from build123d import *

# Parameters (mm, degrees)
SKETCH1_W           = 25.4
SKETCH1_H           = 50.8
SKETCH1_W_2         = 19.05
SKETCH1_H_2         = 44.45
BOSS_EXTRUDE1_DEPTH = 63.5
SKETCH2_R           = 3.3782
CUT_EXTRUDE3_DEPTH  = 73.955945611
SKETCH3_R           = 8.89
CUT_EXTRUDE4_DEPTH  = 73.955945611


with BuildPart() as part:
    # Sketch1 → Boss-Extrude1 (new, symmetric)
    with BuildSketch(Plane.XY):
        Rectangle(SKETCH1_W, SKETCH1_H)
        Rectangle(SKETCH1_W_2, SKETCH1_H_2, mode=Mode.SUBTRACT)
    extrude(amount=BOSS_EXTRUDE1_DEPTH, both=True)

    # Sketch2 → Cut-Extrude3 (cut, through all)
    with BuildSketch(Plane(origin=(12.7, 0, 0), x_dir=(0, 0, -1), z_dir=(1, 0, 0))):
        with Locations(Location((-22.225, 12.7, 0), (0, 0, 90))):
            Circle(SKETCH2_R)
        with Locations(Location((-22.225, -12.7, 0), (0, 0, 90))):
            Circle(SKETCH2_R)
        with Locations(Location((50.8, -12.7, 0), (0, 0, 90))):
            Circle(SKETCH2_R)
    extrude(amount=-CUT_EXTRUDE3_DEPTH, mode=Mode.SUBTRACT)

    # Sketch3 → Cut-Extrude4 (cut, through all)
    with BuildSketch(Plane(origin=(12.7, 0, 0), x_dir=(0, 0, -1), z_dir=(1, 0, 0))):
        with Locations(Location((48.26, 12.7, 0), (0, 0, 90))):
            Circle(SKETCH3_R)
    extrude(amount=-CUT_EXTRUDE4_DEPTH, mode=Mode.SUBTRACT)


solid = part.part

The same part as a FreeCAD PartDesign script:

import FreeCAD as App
import Part
import Sketcher
Q = App.Units.Quantity


def add_polygon(sketch, points):
    """Adds a closed chain of lines whose ends are joined by coincident constraints."""
    first, n = sketch.GeometryCount, len(points)
    for a, b in zip(points, points[1:] + points[:1]):
        sketch.addGeometry(Part.LineSegment(App.Vector(*a, 0), App.Vector(*b, 0)), False)
    for i in range(n):
        sketch.addConstraint(Sketcher.Constraint("Coincident", first + i, 2, first + (i + 1) % n, 1))

doc = App.newDocument("Part")
params = doc.addObject("Spreadsheet::Sheet", "Params")
for row, (alias, value) in enumerate([
    ("sketch1_width", "1 in"),
    ("sketch1_height", "2 in"),
    ("sketch1_width2", "0.75 in"),
    ("sketch1_height2", "1.75 in"),
    ("pad1_length", "5 in"),
    ("sketch2_diameter", "0.266 in"),
    ("sketch3_diameter", "0.7 in"),
], start=1):
    params.set(f"A{row}", alias)
    params.set(f"B{row}", "=" + value)
    params.setAlias(f"B{row}", alias)

body = doc.addObject("PartDesign::Body", "Body")

# Sketch on XY plane
sketch1 = body.newObject("Sketcher::SketchObject", "Sketch")
sketch1.AttachmentSupport = (doc.getObject("XY_Plane"), [""])
sketch1.MapMode = "FlatFace"
add_polygon(sketch1, [(-13, 25), (-13, -25), (13, -25), (13, 25)])  # lines 0-3
add_polygon(sketch1, [(10, -22), (-10, -22), (-10, 22), (10, 22)])  # lines 4-7
sketch1.addConstraint(Sketcher.Constraint("Vertical", 0))
sketch1.addConstraint(Sketcher.Constraint("Horizontal", 1))
sketch1.addConstraint(Sketcher.Constraint("Vertical", 2))
sketch1.addConstraint(Sketcher.Constraint("Horizontal", 3))
sketch1.addConstraint(Sketcher.Constraint("Horizontal", 4))
sketch1.addConstraint(Sketcher.Constraint("Vertical", 5))
sketch1.addConstraint(Sketcher.Constraint("Horizontal", 6))
sketch1.addConstraint(Sketcher.Constraint("Vertical", 7))
sketch1.addConstraint(Sketcher.Constraint("Symmetric", 0, 2, 2, 2, -1, 1))
sketch1.addConstraint(Sketcher.Constraint("Symmetric", 4, 2, 6, 2, -1, 1))
sketch1.addConstraint(Sketcher.Constraint("DistanceX", 1, 1, 1, 2, Q("1 in")))
sketch1.addConstraint(Sketcher.Constraint("DistanceY", 0, 2, 0, 1, Q("2 in")))
sketch1.addConstraint(Sketcher.Constraint("DistanceX", 4, 2, 4, 1, Q("0.75 in")))
sketch1.addConstraint(Sketcher.Constraint("DistanceY", 5, 1, 5, 2, Q("1.75 in")))
sketch1.setExpression("Constraints[18]", "Params.sketch1_width")
sketch1.setExpression("Constraints[19]", "Params.sketch1_height")
sketch1.setExpression("Constraints[20]", "Params.sketch1_width2")
sketch1.setExpression("Constraints[21]", "Params.sketch1_height2")
pad1 = body.newObject("PartDesign::Pad", "Pad")
pad1.Profile = sketch1
pad1.setExpression("Length", "Params.pad1_length")
pad1.Midplane = True

# Sketch on YZ plane
sketch2 = body.newObject("Sketcher::SketchObject", "Sketch001")
sketch2.AttachmentSupport = (doc.getObject("YZ_Plane"), [""])
sketch2.MapMode = "FlatFace"
sketch2.AttachmentOffset = App.Placement(App.Vector(0, 0, 0.5 * 25.4), App.Rotation())
sketch2.addGeometry(Part.Circle(App.Vector(12.7, 22.2, 0), App.Vector(0, 0, 1), 3.4), False)
sketch2.addGeometry(Part.Circle(App.Vector(-12.7, 22.2, 0), App.Vector(0, 0, 1), 3.4), False)
sketch2.addGeometry(Part.Circle(App.Vector(-12.7, -50.8, 0), App.Vector(0, 0, 1), 3.4), False)
sketch2.addConstraint(Sketcher.Constraint("Equal", 0, 1))
sketch2.addConstraint(Sketcher.Constraint("Equal", 1, 2))
sketch2.addConstraint(Sketcher.Constraint("Symmetric", 0, 3, 1, 3, -2))
sketch2.addConstraint(Sketcher.Constraint("Vertical", 1, 3, 2, 3))
sketch2.addConstraint(Sketcher.Constraint("Diameter", 0, Q("0.266 in")))
sketch2.addConstraint(Sketcher.Constraint("DistanceY", 2, 3, -1, 1, Q("2 in")))
sketch2.addConstraint(Sketcher.Constraint("DistanceX", 1, 3, 0, 3, Q("1 in")))
sketch2.addConstraint(Sketcher.Constraint("DistanceY", -1, 1, 0, 3, Q("0.875 in")))
sketch2.setExpression("Constraints[4]", "Params.sketch2_diameter")
pocket1 = body.newObject("PartDesign::Pocket", "Pocket")
pocket1.Profile = sketch2
pocket1.Type = "ThroughAll"

# Sketch on YZ plane
sketch3 = body.newObject("Sketcher::SketchObject", "Sketch002")
sketch3.AttachmentSupport = (doc.getObject("YZ_Plane"), [""])
sketch3.MapMode = "FlatFace"
sketch3.AttachmentOffset = App.Placement(App.Vector(0, 0, 0.5 * 25.4), App.Rotation())
sketch3.addGeometry(Part.Circle(App.Vector(13, -48, 0), App.Vector(0, 0, 1), 9), False)
sketch3.addConstraint(Sketcher.Constraint("Diameter", 0, Q("0.7 in")))
sketch3.addConstraint(Sketcher.Constraint("DistanceX", -1, 1, 0, 3, Q("0.5 in")))
sketch3.addConstraint(Sketcher.Constraint("DistanceY", 0, 3, -1, 1, Q("1.9 in")))
sketch3.setExpression("Constraints[0]", "Params.sketch3_diameter")
pocket2 = body.newObject("PartDesign::Pocket", "Pocket001")
pocket2.Profile = sketch3
pocket2.Type = "ThroughAll"

doc.recompute()
